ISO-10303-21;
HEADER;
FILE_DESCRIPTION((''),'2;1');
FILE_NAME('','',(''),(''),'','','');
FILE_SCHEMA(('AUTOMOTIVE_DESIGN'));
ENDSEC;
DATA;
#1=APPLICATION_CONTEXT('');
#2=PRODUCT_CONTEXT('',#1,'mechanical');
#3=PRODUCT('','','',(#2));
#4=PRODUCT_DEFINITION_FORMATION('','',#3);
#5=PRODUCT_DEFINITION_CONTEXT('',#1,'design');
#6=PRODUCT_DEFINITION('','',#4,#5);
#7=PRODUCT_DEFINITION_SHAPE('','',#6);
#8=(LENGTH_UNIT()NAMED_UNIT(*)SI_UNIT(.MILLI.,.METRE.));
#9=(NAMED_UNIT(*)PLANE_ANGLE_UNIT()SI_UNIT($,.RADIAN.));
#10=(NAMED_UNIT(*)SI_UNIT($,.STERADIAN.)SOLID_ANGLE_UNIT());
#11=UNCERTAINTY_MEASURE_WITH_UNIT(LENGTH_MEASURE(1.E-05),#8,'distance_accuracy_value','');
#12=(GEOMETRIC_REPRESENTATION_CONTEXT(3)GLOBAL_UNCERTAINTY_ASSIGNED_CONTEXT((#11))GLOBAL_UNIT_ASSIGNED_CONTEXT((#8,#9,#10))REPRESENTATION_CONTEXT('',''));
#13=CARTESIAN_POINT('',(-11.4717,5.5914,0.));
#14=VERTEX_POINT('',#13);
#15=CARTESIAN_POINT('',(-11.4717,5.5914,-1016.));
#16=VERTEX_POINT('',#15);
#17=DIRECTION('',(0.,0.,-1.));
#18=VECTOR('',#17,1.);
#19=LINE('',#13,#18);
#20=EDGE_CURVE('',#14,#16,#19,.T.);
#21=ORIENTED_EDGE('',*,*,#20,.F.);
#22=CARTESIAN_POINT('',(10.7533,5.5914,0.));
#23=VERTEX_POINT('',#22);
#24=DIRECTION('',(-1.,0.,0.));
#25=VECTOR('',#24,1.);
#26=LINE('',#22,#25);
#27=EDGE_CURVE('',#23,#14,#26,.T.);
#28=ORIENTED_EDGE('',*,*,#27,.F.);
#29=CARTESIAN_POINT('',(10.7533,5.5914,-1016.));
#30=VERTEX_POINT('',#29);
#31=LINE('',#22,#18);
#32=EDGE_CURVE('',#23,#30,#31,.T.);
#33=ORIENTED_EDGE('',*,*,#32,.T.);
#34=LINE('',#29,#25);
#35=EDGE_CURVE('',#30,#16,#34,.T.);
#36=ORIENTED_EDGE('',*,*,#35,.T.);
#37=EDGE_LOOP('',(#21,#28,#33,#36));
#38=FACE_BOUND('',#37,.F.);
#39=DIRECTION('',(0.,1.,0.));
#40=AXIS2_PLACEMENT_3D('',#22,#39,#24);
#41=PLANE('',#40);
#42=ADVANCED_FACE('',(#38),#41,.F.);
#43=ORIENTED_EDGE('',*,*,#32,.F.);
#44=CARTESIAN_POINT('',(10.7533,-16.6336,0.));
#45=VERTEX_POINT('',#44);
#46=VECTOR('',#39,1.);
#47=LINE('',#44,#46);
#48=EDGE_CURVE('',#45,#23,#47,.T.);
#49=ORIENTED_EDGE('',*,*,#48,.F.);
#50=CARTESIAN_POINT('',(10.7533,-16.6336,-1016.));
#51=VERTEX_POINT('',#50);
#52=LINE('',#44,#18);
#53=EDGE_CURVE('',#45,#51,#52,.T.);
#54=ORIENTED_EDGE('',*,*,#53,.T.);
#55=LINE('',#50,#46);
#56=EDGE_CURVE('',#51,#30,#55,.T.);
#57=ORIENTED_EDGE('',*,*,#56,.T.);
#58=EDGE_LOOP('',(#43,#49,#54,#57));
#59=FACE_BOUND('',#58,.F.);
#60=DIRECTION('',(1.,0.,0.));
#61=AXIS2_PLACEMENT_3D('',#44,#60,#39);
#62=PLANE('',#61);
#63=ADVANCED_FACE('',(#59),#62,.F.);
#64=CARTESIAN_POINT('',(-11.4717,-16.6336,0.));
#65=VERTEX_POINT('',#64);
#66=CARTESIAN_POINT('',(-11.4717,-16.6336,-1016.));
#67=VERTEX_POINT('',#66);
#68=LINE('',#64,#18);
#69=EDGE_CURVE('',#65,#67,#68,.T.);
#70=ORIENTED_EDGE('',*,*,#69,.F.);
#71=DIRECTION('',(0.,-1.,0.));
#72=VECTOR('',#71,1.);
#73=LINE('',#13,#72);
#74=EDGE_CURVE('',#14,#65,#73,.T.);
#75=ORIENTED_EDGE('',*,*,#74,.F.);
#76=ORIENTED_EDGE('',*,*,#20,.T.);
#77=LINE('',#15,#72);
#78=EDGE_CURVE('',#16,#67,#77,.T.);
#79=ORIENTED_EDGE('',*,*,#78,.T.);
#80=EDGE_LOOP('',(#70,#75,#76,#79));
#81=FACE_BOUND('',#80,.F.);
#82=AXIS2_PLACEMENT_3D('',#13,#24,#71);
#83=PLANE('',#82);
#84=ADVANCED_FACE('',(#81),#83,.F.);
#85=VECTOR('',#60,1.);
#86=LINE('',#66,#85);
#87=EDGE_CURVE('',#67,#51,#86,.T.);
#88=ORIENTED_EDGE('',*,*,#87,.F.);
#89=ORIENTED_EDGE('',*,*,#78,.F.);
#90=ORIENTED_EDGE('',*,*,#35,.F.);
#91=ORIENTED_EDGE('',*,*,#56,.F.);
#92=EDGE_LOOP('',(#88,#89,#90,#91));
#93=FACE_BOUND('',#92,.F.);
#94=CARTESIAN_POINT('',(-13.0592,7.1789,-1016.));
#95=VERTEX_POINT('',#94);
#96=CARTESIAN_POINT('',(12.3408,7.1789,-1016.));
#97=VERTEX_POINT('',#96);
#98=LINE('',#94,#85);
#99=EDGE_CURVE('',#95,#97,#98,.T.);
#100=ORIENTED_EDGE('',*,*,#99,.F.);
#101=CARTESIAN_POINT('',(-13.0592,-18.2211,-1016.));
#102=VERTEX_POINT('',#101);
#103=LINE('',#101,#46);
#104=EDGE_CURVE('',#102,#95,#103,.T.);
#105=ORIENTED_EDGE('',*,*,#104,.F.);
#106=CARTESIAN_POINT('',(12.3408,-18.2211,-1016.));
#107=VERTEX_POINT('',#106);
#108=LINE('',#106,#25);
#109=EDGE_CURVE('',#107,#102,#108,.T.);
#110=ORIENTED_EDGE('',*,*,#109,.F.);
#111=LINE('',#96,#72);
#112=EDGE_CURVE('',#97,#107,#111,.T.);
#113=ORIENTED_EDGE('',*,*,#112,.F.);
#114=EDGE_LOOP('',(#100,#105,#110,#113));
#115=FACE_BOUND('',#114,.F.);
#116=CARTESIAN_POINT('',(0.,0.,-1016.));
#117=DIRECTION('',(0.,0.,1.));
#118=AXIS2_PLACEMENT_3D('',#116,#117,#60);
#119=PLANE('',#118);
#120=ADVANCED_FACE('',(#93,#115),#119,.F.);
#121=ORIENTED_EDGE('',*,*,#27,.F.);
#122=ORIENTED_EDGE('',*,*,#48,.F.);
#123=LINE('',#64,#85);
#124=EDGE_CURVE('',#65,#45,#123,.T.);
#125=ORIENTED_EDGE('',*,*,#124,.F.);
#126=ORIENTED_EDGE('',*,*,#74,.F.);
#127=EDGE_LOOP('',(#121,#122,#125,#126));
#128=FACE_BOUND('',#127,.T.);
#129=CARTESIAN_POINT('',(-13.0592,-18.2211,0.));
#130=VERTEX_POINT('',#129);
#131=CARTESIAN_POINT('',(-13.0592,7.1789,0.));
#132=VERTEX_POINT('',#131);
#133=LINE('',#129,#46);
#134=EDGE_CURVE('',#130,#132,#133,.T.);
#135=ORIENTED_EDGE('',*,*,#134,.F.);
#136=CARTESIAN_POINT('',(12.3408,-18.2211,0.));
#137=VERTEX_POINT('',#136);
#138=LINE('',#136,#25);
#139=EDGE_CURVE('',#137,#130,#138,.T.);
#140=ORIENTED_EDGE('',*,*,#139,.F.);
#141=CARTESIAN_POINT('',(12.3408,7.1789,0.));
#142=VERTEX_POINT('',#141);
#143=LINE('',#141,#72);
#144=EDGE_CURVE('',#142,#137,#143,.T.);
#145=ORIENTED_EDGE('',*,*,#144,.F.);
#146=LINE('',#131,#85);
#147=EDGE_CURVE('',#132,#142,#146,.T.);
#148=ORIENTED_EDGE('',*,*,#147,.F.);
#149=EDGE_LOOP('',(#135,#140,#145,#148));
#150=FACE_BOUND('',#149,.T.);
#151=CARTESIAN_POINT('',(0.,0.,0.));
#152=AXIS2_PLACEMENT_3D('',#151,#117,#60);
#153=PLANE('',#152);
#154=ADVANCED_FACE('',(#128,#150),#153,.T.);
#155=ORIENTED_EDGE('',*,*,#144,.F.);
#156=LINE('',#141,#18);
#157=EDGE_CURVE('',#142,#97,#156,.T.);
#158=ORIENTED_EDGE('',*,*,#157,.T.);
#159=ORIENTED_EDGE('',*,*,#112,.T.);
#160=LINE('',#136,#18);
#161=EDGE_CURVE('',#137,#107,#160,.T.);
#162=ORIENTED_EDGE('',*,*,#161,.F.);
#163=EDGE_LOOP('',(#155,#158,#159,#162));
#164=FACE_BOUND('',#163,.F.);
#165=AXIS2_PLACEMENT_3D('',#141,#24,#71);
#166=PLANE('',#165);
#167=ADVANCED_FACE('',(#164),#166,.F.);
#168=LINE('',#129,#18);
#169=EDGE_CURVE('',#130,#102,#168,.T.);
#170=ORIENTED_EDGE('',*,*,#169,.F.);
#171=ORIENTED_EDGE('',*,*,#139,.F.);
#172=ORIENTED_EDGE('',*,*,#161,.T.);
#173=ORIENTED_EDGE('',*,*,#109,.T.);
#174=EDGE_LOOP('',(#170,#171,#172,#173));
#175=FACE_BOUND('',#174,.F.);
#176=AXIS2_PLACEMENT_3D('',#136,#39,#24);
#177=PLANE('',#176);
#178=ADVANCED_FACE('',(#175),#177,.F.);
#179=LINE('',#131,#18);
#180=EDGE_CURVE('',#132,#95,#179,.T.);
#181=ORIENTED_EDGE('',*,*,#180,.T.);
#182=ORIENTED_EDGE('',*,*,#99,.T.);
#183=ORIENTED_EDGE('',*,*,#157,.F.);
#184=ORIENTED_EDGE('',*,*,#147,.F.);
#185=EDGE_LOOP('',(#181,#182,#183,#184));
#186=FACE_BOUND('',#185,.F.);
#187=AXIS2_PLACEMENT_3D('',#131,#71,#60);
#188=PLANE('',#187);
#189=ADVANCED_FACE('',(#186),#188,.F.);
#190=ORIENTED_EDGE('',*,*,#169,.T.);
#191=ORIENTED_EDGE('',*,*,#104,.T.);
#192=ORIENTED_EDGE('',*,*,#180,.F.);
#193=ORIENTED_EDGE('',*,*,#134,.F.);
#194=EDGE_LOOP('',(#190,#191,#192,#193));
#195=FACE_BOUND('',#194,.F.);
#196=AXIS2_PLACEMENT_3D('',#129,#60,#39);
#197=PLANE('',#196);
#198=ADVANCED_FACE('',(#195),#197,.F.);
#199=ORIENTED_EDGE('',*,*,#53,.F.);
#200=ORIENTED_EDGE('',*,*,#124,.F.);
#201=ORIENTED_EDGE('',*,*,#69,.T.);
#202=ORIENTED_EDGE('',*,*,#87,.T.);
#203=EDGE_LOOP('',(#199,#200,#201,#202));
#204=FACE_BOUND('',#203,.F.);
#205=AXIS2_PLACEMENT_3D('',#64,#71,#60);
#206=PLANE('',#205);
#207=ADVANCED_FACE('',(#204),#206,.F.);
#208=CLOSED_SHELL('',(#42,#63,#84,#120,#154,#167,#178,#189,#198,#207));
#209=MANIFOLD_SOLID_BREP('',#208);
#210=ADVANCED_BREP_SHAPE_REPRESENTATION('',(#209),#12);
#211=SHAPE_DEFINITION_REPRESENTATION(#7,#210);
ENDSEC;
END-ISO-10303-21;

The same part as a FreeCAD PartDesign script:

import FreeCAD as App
import Part
import Sketcher
Q = App.Units.Quantity


def add_polygon(sketch, points):
    """Adds a closed chain of lines whose ends are joined by coincident constraints."""
    first, n = sketch.GeometryCount, len(points)
    for a, b in zip(points, points[1:] + points[:1]):
        sketch.addGeometry(Part.LineSegment(App.Vector(*a, 0), App.Vector(*b, 0)), False)
    for i in range(n):
        sketch.addConstraint(Sketcher.Constraint("Coincident", first + i, 2, first + (i + 1) % n, 1))

doc = App.newDocument("Part")
body = doc.addObject("PartDesign::Body", "Body")

# Sketch on XY plane
sketch1 = body.newObject("Sketcher::SketchObject", "Sketch")
sketch1.AttachmentSupport = (doc.getObject("XY_Plane"), [""])
sketch1.MapMode = "FlatFace"
add_polygon(sketch1, [(12, 7), (-13, 7), (-13, -18), (12, -18)])  # lines 0-3
add_polygon(sketch1, [(-11, 6), (11, 6), (11, -17), (-11, -17)])  # lines 4-7
sketch1.addConstraint(Sketcher.Constraint("Horizontal", 0))
sketch1.addConstraint(Sketcher.Constraint("Vertical", 1))
sketch1.addConstraint(Sketcher.Constraint("Horizontal", 2))
sketch1.addConstraint(Sketcher.Constraint("Vertical", 3))
sketch1.addConstraint(Sketcher.Constraint("Horizontal", 4))
sketch1.addConstraint(Sketcher.Constraint("Vertical", 5))
sketch1.addConstraint(Sketcher.Constraint("Horizontal", 6))
sketch1.addConstraint(Sketcher.Constraint("Vertical", 7))
sketch1.addConstraint(Sketcher.Constraint("Equal", 2, 1))
sketch1.addConstraint(Sketcher.Constraint("Equal", 6, 5))
sketch1.addConstraint(Sketcher.Constraint("DistanceX", 0, 2, 0, 1, Q("1 in")))
sketch1.addConstraint(Sketcher.Constraint("DistanceX", 4, 2, 3, 2, Q("0.0625 in")))
sketch1.addConstraint(Sketcher.Constraint("DistanceY", 4, 2, 3, 2, Q("0.0625 in")))
sketch1.addConstraint(Sketcher.Constraint("DistanceY", 2, 2, 5, 2, Q("0.0625 in")))
sketch1.addConstraint(Sketcher.Constraint("DistanceX", 0, 2, -1, 1, 13.0592))
sketch1.addConstraint(Sketcher.Constraint("DistanceY", -1, 1, 0, 2, 7.179))
pad1 = body.newObject("PartDesign::Pad", "Pad")
pad1.Profile = sketch1
pad1.Length = Q("40 in")
pad1.Reversed = True

doc.recompute()
